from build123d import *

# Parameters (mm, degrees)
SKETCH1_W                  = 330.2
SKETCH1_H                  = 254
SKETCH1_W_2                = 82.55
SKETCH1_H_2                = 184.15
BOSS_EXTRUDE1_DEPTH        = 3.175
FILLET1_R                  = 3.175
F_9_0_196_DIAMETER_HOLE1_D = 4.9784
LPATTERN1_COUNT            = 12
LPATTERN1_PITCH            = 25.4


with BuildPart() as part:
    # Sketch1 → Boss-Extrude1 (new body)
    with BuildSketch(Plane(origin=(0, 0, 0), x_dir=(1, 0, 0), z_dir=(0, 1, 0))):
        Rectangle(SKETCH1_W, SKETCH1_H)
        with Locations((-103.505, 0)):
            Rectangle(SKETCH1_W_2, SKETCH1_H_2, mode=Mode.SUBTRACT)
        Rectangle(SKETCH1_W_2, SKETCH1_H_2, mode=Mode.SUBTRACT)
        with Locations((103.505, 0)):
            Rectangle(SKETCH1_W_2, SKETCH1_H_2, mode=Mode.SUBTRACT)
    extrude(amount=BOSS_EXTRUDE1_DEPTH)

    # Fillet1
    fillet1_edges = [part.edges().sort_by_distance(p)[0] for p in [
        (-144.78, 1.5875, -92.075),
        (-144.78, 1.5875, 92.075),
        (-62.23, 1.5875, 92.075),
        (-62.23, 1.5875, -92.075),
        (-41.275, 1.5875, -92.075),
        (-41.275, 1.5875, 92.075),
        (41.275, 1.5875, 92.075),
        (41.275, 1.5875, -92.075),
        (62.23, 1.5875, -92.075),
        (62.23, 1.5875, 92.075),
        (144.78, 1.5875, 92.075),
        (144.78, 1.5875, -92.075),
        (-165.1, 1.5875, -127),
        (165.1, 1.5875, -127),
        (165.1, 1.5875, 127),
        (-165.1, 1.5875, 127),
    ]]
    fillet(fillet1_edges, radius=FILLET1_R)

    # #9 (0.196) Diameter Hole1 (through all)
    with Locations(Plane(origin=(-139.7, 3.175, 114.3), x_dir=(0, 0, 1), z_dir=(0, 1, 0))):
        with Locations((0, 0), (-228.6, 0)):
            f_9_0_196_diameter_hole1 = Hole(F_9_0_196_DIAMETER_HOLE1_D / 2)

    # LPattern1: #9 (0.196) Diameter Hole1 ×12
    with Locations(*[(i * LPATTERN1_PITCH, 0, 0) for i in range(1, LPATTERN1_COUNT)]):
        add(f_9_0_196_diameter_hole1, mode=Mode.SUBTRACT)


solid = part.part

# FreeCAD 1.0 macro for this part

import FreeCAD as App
import Part
import Sketcher
Q = App.Units.Quantity


def edges_at(feature, points):
    """Names of the edges that pass closest to the given points."""
    edges = feature.Shape.Edges
    near = lambda p: min(range(len(edges)), key=lambda i: edges[i].distToShape(Part.Vertex(*p))[0])
    return sorted({f"Edge{near(p) + 1}" for p in points})

doc = App.newDocument("Part")
body = doc.addObject("PartDesign::Body", "Body")

sketch1 = body.newObject("Sketcher::SketchObject", "Sketch")
sketch1.AttachmentSupport = (doc.getObject("XZ_Plane"), [""])
sketch1.MapMode = "FlatFace"
sketch1.addGeometry(Part.LineSegment(App.Vector(-165, -127, 0), App.Vector(-165, 127, 0)), False)
sketch1.addGeometry(Part.LineSegment(App.Vector(-165, 127, 0), App.Vector(165, 127, 0)), False)
sketch1.addGeometry(Part.LineSegment(App.Vector(165, 127, 0), App.Vector(165, -127, 0)), False)
sketch1.addGeometry(Part.LineSegment(App.Vector(165, -127, 0), App.Vector(-165, -127, 0)), False)
sketch1.addGeometry(Part.LineSegment(App.Vector(-62, 92, 0), App.Vector(-145, 92, 0)), False)
sketch1.addGeometry(Part.LineSegment(App.Vector(-145, 92, 0), App.Vector(-145, -92, 0)), False)
sketch1.addGeometry(Part.LineSegment(App.Vector(-145, -92, 0), App.Vector(-62, -92, 0)), False)
sketch1.addGeometry(Part.LineSegment(App.Vector(-62, -92, 0), App.Vector(-62, 92, 0)), False)
sketch1.addGeometry(Part.LineSegment(App.Vector(41, 92, 0), App.Vector(-41, 92, 0)), False)
sketch1.addGeometry(Part.LineSegment(App.Vector(-41, 92, 0), App.Vector(-41, -92, 0)), False)
sketch1.addGeometry(Part.LineSegment(App.Vector(-41, -92, 0), App.Vector(41, -92, 0)), False)
sketch1.addGeometry(Part.LineSegment(App.Vector(41, -92, 0), App.Vector(41, 92, 0)), False)
sketch1.addGeometry(Part.LineSegment(App.Vector(145, 92, 0), App.Vector(62, 92, 0)), False)
sketch1.addGeometry(Part.LineSegment(App.Vector(62, 92, 0), App.Vector(62, -92, 0)), False)
sketch1.addGeometry(Part.LineSegment(App.Vector(62, -92, 0), App.Vector(145, -92, 0)), False)
sketch1.addGeometry(Part.LineSegment(App.Vector(145, -92, 0), App.Vector(145, 92, 0)), False)
sketch1.addConstraint(Sketcher.Constraint("Coincident", 0, 2, 1, 1))
sketch1.addConstraint(Sketcher.Constraint("Coincident", 1, 2, 2, 1))
sketch1.addConstraint(Sketcher.Constraint("Coincident", 2, 2, 3, 1))
sketch1.addConstraint(Sketcher.Constraint("Coincident", 3, 2, 0, 1))
sketch1.addConstraint(Sketcher.Constraint("Coincident", 4, 2, 5, 1))
sketch1.addConstraint(Sketcher.Constraint("Coincident", 5, 2, 6, 1))
sketch1.addConstraint(Sketcher.Constraint("Coincident", 6, 2, 7, 1))
sketch1.addConstraint(Sketcher.Constraint("Coincident", 7, 2, 4, 1))
sketch1.addConstraint(Sketcher.Constraint("Coincident", 8, 2, 9, 1))
sketch1.addConstraint(Sketcher.Constraint("Coincident", 9, 2, 10, 1))
sketch1.addConstraint(Sketcher.Constraint("Coincident", 10, 2, 11, 1))
sketch1.addConstraint(Sketcher.Constraint("Coincident", 11, 2, 8, 1))
sketch1.addConstraint(Sketcher.Constraint("Coincident", 12, 2, 13, 1))
sketch1.addConstraint(Sketcher.Constraint("Coincident", 13, 2, 14, 1))
sketch1.addConstraint(Sketcher.Constraint("Coincident", 14, 2, 15, 1))
sketch1.addConstraint(Sketcher.Constraint("Coincident", 15, 2, 12, 1))
sketch1.addConstraint(Sketcher.Constraint("Vertical", 0))
sketch1.addConstraint(Sketcher.Constraint("Horizontal", 1))
sketch1.addConstraint(Sketcher.Constraint("Vertical", 2))
sketch1.addConstraint(Sketcher.Constraint("Horizontal", 3))
sketch1.addConstraint(Sketcher.Constraint("Horizontal", 4))
sketch1.addConstraint(Sketcher.Constraint("Vertical", 5))
sketch1.addConstraint(Sketcher.Constraint("Horizontal", 6))
sketch1.addConstraint(Sketcher.Constraint("Vertical", 7))
sketch1.addConstraint(Sketcher.Constraint("Horizontal", 8))
sketch1.addConstraint(Sketcher.Constraint("Vertical", 9))
sketch1.addConstraint(Sketcher.Constraint("Horizontal", 10))
sketch1.addConstraint(Sketcher.Constraint("Vertical", 11))
sketch1.addConstraint(Sketcher.Constraint("Horizontal", 12))
sketch1.addConstraint(Sketcher.Constraint("Vertical", 13))
sketch1.addConstraint(Sketcher.Constraint("Horizontal", 14))
sketch1.addConstraint(Sketcher.Constraint("Vertical", 15))
sketch1.addConstraint(Sketcher.Constraint("Symmetric", 0, 2, 2, 2, -1, 1))
sketch1.addConstraint(Sketcher.Constraint("Symmetric", 8, 2, 10, 2, -1, 1))
sketch1.addConstraint(Sketcher.Constraint("Symmetric", 6, 2, 12, 2, -1, 1))
sketch1.addConstraint(Sketcher.Constraint("Symmetric", 4, 2, 14, 2, -1, 1))
sketch1.addConstraint(Sketcher.Constraint("Horizontal", 7, 2, 8, 2))
sketch1.addConstraint(Sketcher.Constraint("Horizontal", 6, 2, 9, 2))
sketch1.addConstraint(Sketcher.Constraint("Equal", 6, 8))
sketch1.addConstraint(Sketcher.Constraint("DistanceX", 1, 1, 1, 2, Q("13 in")))
sketch1.addConstraint(Sketcher.Constraint("DistanceY", 0, 1, 0, 2, Q("10 in")))
sketch1.addConstraint(Sketcher.Constraint("DistanceX", 4, 2, 4, 1, Q("3.25 in")))
sketch1.addConstraint(Sketcher.Constraint("DistanceY", 5, 2, 5, 1, Q("7.25 in")))
sketch1.addConstraint(Sketcher.Constraint("DistanceX", 4, 2, -1, 1, Q("5.7 in")))
pad1 = body.newObject("PartDesign::Pad", "Pad")
pad1.Profile = sketch1
pad1.Length = Q("0.125 in")
pad1.Reversed = True
doc.recompute()

fillet = body.newObject("PartDesign::Fillet", "Fillet")
fillet.Base = (pad1, edges_at(pad1, [
    (-144.78, 1.587, -92.075),
    (-144.78, 1.587, 92.075),
    (-62.23, 1.587, 92.075),
    (-62.23, 1.587, -92.075),
    (-41.275, 1.587, -92.075),
    (-41.275, 1.587, 92.075),
    (41.275, 1.587, 92.075),
    (41.275, 1.587, -92.075),
    (62.23, 1.587, -92.075),
    (62.23, 1.587, 92.075),
    (144.78, 1.587, 92.075),
    (144.78, 1.587, -92.075),
    (-165.1, 1.587, -127),
    (165.1, 1.587, -127),
    (165.1, 1.587, 127),
    (-165.1, 1.587, 127),
]))
fillet.Radius = Q("0.125 in")

sketch2 = body.newObject("Sketcher::SketchObject", "Sketch001")
sketch2.AttachmentSupport = (doc.getObject("XZ_Plane"), [""])
sketch2.MapMode = "FlatFace"
sketch2.AttachmentOffset = App.Placement(App.Vector(0, 0, -0.125 * 25.4), App.Rotation())
sketch2.addGeometry(Part.Circle(App.Vector(-139.7, 114.3, 0), App.Vector(0, 0, 1), 2.5), False)
sketch2.addGeometry(Part.Circle(App.Vector(-139.7, -114.3, 0), App.Vector(0, 0, 1), 2.5), False)
sketch2.addConstraint(Sketcher.Constraint("Equal", 0, 1))
sketch2.addConstraint(Sketcher.Constraint("Symmetric", 0, 3, 1, 3, -1))
sketch2.addConstraint(Sketcher.Constraint("Diameter", 0, Q("0.196 in")))
sketch2.addConstraint(Sketcher.Constraint("DistanceY", 1, 3, 0, 3, Q("9 in")))
sketch2.addConstraint(Sketcher.Constraint("DistanceX", 0, 3, -1, 1, Q("5.5 in")))
doc.recompute()
hole = body.newObject("PartDesign::Hole", "Hole")
hole.Profile = sketch2
hole.ThreadType = "None"
hole.Diameter = Q("0.196 in")
hole.DepthType = "ThroughAll"
hole.Reversed = True
doc.recompute()

linearpattern = body.newObject("PartDesign::LinearPattern", "LinearPattern")
linearpattern.Originals = [hole]
linearpattern.Direction = (doc.getObject("X_Axis"), [""])
linearpattern.Mode = "offset"
linearpattern.Offset = Q("1 in")
linearpattern.Occurrences = 12
body.Tip = linearpattern

doc.recompute()
